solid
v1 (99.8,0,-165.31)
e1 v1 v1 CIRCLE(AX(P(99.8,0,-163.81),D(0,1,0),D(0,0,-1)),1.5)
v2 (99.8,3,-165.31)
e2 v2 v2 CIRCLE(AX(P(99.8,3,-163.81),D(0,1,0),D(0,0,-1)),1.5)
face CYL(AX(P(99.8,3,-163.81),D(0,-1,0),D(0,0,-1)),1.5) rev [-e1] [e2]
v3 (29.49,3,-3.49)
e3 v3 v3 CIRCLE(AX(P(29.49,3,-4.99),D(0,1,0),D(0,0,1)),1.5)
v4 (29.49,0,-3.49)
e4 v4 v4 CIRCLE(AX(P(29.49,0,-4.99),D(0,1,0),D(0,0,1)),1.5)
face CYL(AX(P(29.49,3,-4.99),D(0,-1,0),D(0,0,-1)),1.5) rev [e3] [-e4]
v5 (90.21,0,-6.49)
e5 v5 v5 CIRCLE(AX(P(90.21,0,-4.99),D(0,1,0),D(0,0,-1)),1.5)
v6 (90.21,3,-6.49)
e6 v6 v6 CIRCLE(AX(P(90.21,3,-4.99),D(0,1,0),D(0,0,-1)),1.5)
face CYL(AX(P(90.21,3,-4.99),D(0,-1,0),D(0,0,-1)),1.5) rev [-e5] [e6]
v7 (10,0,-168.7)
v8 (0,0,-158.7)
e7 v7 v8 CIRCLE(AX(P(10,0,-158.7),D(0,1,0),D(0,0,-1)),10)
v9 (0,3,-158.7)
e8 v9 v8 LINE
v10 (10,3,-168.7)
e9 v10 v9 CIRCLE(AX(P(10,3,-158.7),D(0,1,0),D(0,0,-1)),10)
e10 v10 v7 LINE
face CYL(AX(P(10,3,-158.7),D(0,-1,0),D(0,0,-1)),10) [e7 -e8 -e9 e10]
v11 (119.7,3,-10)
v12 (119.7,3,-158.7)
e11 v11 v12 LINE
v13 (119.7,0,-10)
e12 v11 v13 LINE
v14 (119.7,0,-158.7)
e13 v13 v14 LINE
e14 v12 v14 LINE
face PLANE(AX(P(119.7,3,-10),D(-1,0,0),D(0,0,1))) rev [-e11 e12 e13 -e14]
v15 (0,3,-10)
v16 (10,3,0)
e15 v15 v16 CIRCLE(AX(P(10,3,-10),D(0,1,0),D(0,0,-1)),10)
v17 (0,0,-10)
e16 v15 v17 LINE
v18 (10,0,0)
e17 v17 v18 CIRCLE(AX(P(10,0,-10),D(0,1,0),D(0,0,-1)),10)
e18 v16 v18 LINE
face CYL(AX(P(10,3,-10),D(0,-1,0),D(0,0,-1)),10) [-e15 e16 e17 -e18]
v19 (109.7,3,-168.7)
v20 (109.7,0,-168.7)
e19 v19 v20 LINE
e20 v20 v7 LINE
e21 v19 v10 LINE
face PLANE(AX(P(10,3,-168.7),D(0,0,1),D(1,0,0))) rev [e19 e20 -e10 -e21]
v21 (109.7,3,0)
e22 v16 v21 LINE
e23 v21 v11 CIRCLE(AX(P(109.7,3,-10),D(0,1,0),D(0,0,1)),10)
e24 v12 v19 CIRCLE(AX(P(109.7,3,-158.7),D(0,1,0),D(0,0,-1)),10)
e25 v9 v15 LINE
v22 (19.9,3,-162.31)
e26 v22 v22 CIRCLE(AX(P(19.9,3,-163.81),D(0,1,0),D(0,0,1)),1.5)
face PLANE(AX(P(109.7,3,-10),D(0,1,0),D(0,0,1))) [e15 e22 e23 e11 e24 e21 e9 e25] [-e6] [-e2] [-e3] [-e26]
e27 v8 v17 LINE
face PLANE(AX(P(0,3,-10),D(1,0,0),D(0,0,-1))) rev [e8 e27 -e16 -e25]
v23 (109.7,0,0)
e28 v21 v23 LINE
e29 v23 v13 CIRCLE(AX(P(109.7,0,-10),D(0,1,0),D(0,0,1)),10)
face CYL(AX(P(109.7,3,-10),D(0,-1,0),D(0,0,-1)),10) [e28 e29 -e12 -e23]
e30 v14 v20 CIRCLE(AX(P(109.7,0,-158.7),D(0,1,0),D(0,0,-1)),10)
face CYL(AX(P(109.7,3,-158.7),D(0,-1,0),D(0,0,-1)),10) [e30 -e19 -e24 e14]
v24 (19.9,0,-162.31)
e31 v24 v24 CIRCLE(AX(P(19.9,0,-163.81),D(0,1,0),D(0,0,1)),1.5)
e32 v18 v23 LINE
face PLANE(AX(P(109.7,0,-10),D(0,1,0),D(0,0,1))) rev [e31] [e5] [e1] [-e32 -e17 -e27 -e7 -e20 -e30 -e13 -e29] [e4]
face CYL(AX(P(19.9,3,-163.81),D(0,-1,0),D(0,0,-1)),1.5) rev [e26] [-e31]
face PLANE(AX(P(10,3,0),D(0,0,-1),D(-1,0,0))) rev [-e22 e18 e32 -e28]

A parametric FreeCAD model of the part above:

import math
import FreeCAD as App
import Part
import Sketcher

V = App.Vector
Q = App.Units.Quantity

doc = App.newDocument("Part")
body = doc.addObject("PartDesign::Body", "Body")

sketch1 = body.newObject("Sketcher::SketchObject", "Sketch")
sketch1.AttachmentSupport = (doc.getObject("XZ_Plane"), [""])
sketch1.MapMode = "FlatFace"
sketch1.addGeometry([
    Part.LineSegment(V(10, 0, 0), V(109.7, 0, 0)),
    Part.ArcOfCircle(Part.Circle(V(109.7, -10, 0), V(0, 0, 1), 10), math.radians(0), math.radians(90)),
    Part.LineSegment(V(119.7, -10, 0), V(119.7, -158.7, 0)),
    Part.ArcOfCircle(Part.Circle(V(109.7, -158.7, 0), V(0, 0, 1), 10), math.radians(-90), math.radians(0)),
    Part.LineSegment(V(109.7, -168.7, 0), V(10, -168.7, 0)),
    Part.ArcOfCircle(Part.Circle(V(10, -158.7, 0), V(0, 0, 1), 10), math.radians(180), math.radians(270)),
    Part.LineSegment(V(0, -158.7, 0), V(0, -10, 0)),
    Part.ArcOfCircle(Part.Circle(V(10, -10, 0), V(0, 0, 1), 10), math.radians(90), math.radians(180)),
    Part.Circle(V(29.5, -5, 0), V(0, 0, 1), 1.5),
    Part.Circle(V(90.2, -5, 0), V(0, 0, 1), 1.5),
    Part.Circle(V(19.9, -163.8, 0), V(0, 0, 1), 1.5),
    Part.Circle(V(99.8, -163.8, 0), V(0, 0, 1), 1.5),
], False)
sketch1.addConstraint([
    Sketcher.Constraint("Tangent", 0, 2, 1, 2),
    Sketcher.Constraint("Tangent", 1, 1, 2, 1),
    Sketcher.Constraint("Tangent", 2, 2, 3, 2),
    Sketcher.Constraint("Tangent", 3, 1, 4, 1),
    Sketcher.Constraint("Tangent", 4, 2, 5, 2),
    Sketcher.Constraint("Tangent", 5, 1, 6, 1),
    Sketcher.Constraint("Tangent", 6, 2, 7, 2),
    Sketcher.Constraint("Tangent", 7, 1, 0, 1),
    Sketcher.Constraint("Horizontal", 0),
    Sketcher.Constraint("Vertical", 2),
    Sketcher.Constraint("Horizontal", 4),
    Sketcher.Constraint("Vertical", 6),
    Sketcher.Constraint("Equal", 1, 3),
    Sketcher.Constraint("Equal", 3, 5),
    Sketcher.Constraint("Equal", 5, 7),
    Sketcher.Constraint("Equal", 8, 9),
    Sketcher.Constraint("Equal", 9, 10),
    Sketcher.Constraint("Equal", 10, 11),
    Sketcher.Constraint("PointOnObject", 0, 2, -1),
    Sketcher.Constraint("PointOnObject", 5, 1, -2),
    Sketcher.Constraint("Horizontal", 8, 3, 9, 3),
    Sketcher.Constraint("Horizontal", 10, 3, 11, 3),
    Sketcher.Constraint("Diameter", 8, Q("3 mm")),
    Sketcher.Constraint("Radius", 1, Q("10 mm")),
    Sketcher.Constraint("DistanceX", 0, 1, 0, 2, Q("99.7 mm")),
    Sketcher.Constraint("DistanceY", 2, 2, 2, 1, Q("148.7 mm")),
    Sketcher.Constraint("DistanceX", -1, 1, 10, 3, Q("19.9 mm")),
    Sketcher.Constraint("DistanceX", -1, 1, 11, 3, Q("99.8 mm")),
    Sketcher.Constraint("DistanceX", -1, 1, 8, 3, Q("29.49 mm")),
    Sketcher.Constraint("DistanceY", 8, 3, -1, 1, Q("4.99 mm")),
    Sketcher.Constraint("DistanceX", -1, 1, 9, 3, Q("90.21 mm")),
    Sketcher.Constraint("DistanceY", 10, 3, -1, 1, Q("163.81 mm")),
])
pad1 = body.newObject("PartDesign::Pad", "Pad")
pad1.Profile = sketch1
pad1.Length = 3
pad1.Reversed = True

doc.recompute()
